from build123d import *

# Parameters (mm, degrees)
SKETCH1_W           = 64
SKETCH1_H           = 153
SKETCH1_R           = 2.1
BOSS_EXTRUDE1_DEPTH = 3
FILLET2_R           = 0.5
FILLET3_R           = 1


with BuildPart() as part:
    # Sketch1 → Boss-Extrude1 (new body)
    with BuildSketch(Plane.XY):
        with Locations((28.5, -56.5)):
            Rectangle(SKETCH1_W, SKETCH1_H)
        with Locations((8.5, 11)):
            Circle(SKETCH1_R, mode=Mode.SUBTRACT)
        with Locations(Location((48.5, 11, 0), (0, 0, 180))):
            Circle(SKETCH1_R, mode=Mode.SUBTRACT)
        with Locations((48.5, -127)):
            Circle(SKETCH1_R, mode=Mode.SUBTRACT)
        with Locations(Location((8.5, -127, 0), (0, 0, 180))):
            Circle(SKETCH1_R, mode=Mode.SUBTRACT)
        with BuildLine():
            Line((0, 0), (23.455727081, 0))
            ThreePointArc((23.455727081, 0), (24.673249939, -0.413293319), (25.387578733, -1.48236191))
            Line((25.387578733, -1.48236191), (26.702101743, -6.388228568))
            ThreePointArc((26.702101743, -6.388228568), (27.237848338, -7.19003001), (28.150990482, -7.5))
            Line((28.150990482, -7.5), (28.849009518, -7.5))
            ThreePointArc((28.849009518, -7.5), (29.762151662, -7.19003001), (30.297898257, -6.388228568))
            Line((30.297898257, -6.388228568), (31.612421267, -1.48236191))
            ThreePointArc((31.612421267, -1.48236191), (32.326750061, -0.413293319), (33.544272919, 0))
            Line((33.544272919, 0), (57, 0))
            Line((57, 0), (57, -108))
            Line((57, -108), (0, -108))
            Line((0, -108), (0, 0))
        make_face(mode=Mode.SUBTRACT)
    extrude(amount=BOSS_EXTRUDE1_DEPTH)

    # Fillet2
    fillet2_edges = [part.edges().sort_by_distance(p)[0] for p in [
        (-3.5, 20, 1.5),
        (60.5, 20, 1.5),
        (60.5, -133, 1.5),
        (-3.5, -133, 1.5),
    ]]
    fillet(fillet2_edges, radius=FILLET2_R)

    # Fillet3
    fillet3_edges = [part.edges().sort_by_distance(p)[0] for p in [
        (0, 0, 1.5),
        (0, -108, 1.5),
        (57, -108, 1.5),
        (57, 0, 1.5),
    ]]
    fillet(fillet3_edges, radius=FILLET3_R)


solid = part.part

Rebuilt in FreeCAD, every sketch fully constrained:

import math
import FreeCAD as App
import Part
import Sketcher

V = App.Vector
Q = App.Units.Quantity


def edges_at(feature, points):
    """Names of the edges that pass closest to the given points."""
    edges = feature.Shape.Edges
    near = lambda p: min(range(len(edges)), key=lambda i: edges[i].distToShape(Part.Vertex(*p))[0])
    return sorted({f"Edge{near(p) + 1}" for p in points})

doc = App.newDocument("Part")
body = doc.addObject("PartDesign::Body", "Body")

# Sketch on XY plane
sketch1 = body.newObject("Sketcher::SketchObject", "Sketch")
sketch1.AttachmentSupport = (doc.getObject("XY_Plane"), [""])
sketch1.MapMode = "FlatFace"
sketch1.addGeometry([
    Part.LineSegment(V(-3.5, 20, 0), V(-3.5, -133, 0)),  # 0
    Part.LineSegment(V(-3.5, -133, 0), V(60.5, -133, 0)),  # 1
    Part.LineSegment(V(60.5, -133, 0), V(60.5, 20, 0)),  # 2
    Part.LineSegment(V(60.5, 20, 0), V(-3.5, 20, 0)),  # 3
    Part.Circle(V(8.5, -127, 0), V(0, 0, 1), 2.1),  # 4
    Part.Circle(V(48.5, -127, 0), V(0, 0, 1), 2.1),  # 5
    Part.Circle(V(8.5, 11, 0), V(0, 0, 1), 2.1),  # 6
    Part.LineSegment(V(0, -108, 0), V(0, 0, 0)),  # 7
    Part.LineSegment(V(0, 0, 0), V(23.5, 0, 0)),  # 8
    Part.ArcOfCircle(Part.Circle(V(23.5, -2, 0), V(0, 0, 1), 2), math.radians(15), math.radians(90)),  # 9
    Part.LineSegment(V(25.4, -1.5, 0), V(26.7, -6.4, 0)),  # 10
    Part.ArcOfCircle(Part.Circle(V(28.2, -6, 0), V(0, 0, 1), 1.5), math.radians(-165), math.radians(-90)),  # 11
    Part.LineSegment(V(28.2, -7.5, 0), V(28.8, -7.5, 0)),  # 12
    Part.ArcOfCircle(Part.Circle(V(28.8, -6, 0), V(0, 0, 1), 1.5), math.radians(-90), math.radians(-15)),  # 13
    Part.LineSegment(V(30.3, -6.4, 0), V(31.6, -1.5, 0)),  # 14
    Part.ArcOfCircle(Part.Circle(V(33.5, -2, 0), V(0, 0, 1), 2), math.radians(90), math.radians(165)),  # 15
    Part.LineSegment(V(33.5, 0, 0), V(57, 0, 0)),  # 16
    Part.LineSegment(V(57, 0, 0), V(57, -108, 0)),  # 17
    Part.LineSegment(V(57, -108, 0), V(0, -108, 0)),  # 18
    Part.Circle(V(48.5, 11, 0), V(0, 0, 1), 2.1),  # 19
], False)
sketch1.addConstraint([
    Sketcher.Constraint("Coincident", 0, 2, 1, 1),
    Sketcher.Constraint("Coincident", 1, 2, 2, 1),
    Sketcher.Constraint("Coincident", 2, 2, 3, 1),
    Sketcher.Constraint("Coincident", 3, 2, 0, 1),
    Sketcher.Constraint("Coincident", 7, 2, 8, 1),
    Sketcher.Constraint("Tangent", 8, 2, 9, 2),
    Sketcher.Constraint("Tangent", 9, 1, 10, 1),
    Sketcher.Constraint("Tangent", 10, 2, 11, 1),
    Sketcher.Constraint("Tangent", 11, 2, 12, 1),
    Sketcher.Constraint("Tangent", 12, 2, 13, 1),
    Sketcher.Constraint("Tangent", 13, 2, 14, 1),
    Sketcher.Constraint("Tangent", 14, 2, 15, 2),
    Sketcher.Constraint("Tangent", 15, 1, 16, 1),
    Sketcher.Constraint("Coincident", 16, 2, 17, 1),
    Sketcher.Constraint("Coincident", 17, 2, 18, 1),
    Sketcher.Constraint("Coincident", 18, 2, 7, 1),
    Sketcher.Constraint("Vertical", 0),
    Sketcher.Constraint("Horizontal", 1),
    Sketcher.Constraint("Vertical", 2),
    Sketcher.Constraint("Horizontal", 3),
    Sketcher.Constraint("Vertical", 7),
    Sketcher.Constraint("Horizontal", 8),
    Sketcher.Constraint("Horizontal", 12),
    Sketcher.Constraint("Horizontal", 16),
    Sketcher.Constraint("Vertical", 17),
    Sketcher.Constraint("Horizontal", 18),
    Sketcher.Constraint("Coincident", 7, 2, -1, 1),
    Sketcher.Constraint("Equal", 4, 5),
    Sketcher.Constraint("Equal", 5, 6),
    Sketcher.Constraint("Equal", 11, 13),
    Sketcher.Constraint("Equal", 9, 15),
    Sketcher.Constraint("Equal", 6, 19),
    Sketcher.Constraint("PointOnObject", 15, 1, -1),
    Sketcher.Constraint("Horizontal", 4, 3, 5, 3),
    Sketcher.Constraint("Horizontal", 6, 3, 19, 3),
    Sketcher.Constraint("Horizontal", 10, 2, 13, 2),
    Sketcher.Constraint("Vertical", 4, 3, 6, 3),
    Sketcher.Constraint("Vertical", 5, 3, 19, 3),
    Sketcher.Constraint("Equal", 8, 16),
    Sketcher.Constraint("Radius", 9, Q("2 mm")),
    Sketcher.Constraint("Diameter", 4, Q("4.2 mm")),
    Sketcher.Constraint("Radius", 11, Q("1.5 mm")),
    Sketcher.Constraint("DistanceX", 1, 1, 1, 2, Q("64 mm")),
    Sketcher.Constraint("DistanceX", 18, 2, 18, 1, Q("57 mm")),
    Sketcher.Constraint("DistanceY", 0, 2, 0, 1, Q("153 mm")),
    Sketcher.Constraint("DistanceY", 7, 1, 7, 2, Q("108 mm")),
    Sketcher.Constraint("Angle", 10, Q("-75 deg")),
    Sketcher.Constraint("DistanceY", 4, 3, -1, 1, Q("127 mm")),
    Sketcher.Constraint("DistanceY", -1, 1, 6, 3, Q("11 mm")),
    Sketcher.Constraint("DistanceY", 11, 3, -1, 1, Q("6 mm")),
    Sketcher.Constraint("DistanceY", 0, 2, -1, 1, Q("133 mm")),
    Sketcher.Constraint("DistanceX", 4, 3, 5, 3, Q("40 mm")),
    Sketcher.Constraint("DistanceX", 0, 2, 4, 3, Q("12 mm")),
    Sketcher.Constraint("DistanceX", -1, 1, 4, 3, Q("8.5 mm")),
    Sketcher.Constraint("DistanceX", 12, 1, 12, 2, Q("0.698019 mm")),
])
pad1 = body.newObject("PartDesign::Pad", "Pad")
pad1.Profile = sketch1
pad1.Length = 3
doc.recompute()

fillet = body.newObject("PartDesign::Fillet", "Fillet")
fillet.Base = (pad1, edges_at(pad1, [
    (-3.5, 20, 1.5),
    (60.5, 20, 1.5),
    (60.5, -133, 1.5),
    (-3.5, -133, 1.5),
]))
fillet.Radius = 0.5
doc.recompute()

fillet2 = body.newObject("PartDesign::Fillet", "Fillet001")
fillet2.Base = (fillet, edges_at(fillet, [
    (0, 0, 1.5),
    (0, -108, 1.5),
    (57, -108, 1.5),
    (57, 0, 1.5),
]))
fillet2.Radius = 1

doc.recompute()
